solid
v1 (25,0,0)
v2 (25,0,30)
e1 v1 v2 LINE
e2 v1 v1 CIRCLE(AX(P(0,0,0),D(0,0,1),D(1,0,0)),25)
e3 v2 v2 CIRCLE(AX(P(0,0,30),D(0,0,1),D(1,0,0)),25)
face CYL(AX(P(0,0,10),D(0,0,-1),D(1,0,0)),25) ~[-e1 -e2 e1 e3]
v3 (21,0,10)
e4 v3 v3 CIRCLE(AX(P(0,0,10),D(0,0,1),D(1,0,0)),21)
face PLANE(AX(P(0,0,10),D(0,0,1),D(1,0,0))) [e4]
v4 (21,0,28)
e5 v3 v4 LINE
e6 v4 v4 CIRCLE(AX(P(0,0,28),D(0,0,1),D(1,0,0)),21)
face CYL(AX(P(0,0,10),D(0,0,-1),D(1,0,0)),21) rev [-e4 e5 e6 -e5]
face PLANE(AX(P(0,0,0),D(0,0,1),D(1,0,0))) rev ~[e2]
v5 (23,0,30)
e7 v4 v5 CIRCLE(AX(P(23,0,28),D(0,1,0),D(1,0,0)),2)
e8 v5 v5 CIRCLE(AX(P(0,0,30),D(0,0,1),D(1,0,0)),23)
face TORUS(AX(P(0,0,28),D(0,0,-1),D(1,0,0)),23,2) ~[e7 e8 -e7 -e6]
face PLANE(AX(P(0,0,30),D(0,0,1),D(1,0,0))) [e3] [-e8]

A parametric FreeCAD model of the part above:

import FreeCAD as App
import Part
import Sketcher


def edges_at(feature, points):
    """Names of the edges that pass closest to the given points."""
    edges = feature.Shape.Edges
    near = lambda p: min(range(len(edges)), key=lambda i: edges[i].distToShape(Part.Vertex(*p))[0])
    return sorted({f"Edge{near(p) + 1}" for p in points})

doc = App.newDocument("Part")
params = doc.addObject("Spreadsheet::Sheet", "Params")
for row, (alias, value) in enumerate([
    ("sketch1_diameter", "50 mm"),
    ("sketch1_diameter2", "42 mm"),
    ("pad1_length", "20 mm"),
    ("fillet_radius", "2 mm"),
    ("sketch2_diameter", "50 mm"),
    ("pad2_length", "10 mm"),
], start=1):
    params.set(f"A{row}", alias)
    params.set(f"B{row}", "=" + value)
    params.setAlias(f"B{row}", alias)

body = doc.addObject("PartDesign::Body", "Body")

# Sketch on XY plane
sketch1 = body.newObject("Sketcher::SketchObject", "Sketch")
sketch1.AttachmentSupport = (doc.getObject("XY_Plane"), [""])
sketch1.MapMode = "FlatFace"
sketch1.AttachmentOffset = App.Placement(App.Vector(0, 0, 10), App.Rotation())
sketch1.addGeometry([
    Part.Circle(App.Vector(0, 0, 0), App.Vector(0, 0, 1), 25),
    Part.Circle(App.Vector(0, 0, 0), App.Vector(0, 0, 1), 21),
], False)
sketch1.addConstraint([
    Sketcher.Constraint("Coincident", 0, 3, -1, 1),
    Sketcher.Constraint("Coincident", 1, 3, -1, 1),
    Sketcher.Constraint("Diameter", 0, 50.0),
    Sketcher.Constraint("Diameter", 1, 42.0),
])
sketch1.setExpression("Constraints[2]", "Params.sketch1_diameter")
sketch1.setExpression("Constraints[3]", "Params.sketch1_diameter2")
pad1 = body.newObject("PartDesign::Pad", "Pad")
pad1.Profile = sketch1
pad1.setExpression("Length", "Params.pad1_length")
doc.recompute()

fillet = body.newObject("PartDesign::Fillet", "Fillet")
fillet.Base = (pad1, edges_at(pad1, [(-21, 0, 30)]))
fillet.setExpression("Radius", "Params.fillet_radius")
body2 = doc.addObject("PartDesign::Body", "Body001")

# Sketch on XY plane
sketch2 = body2.newObject("Sketcher::SketchObject", "Sketch001")
sketch2.AttachmentSupport = (doc.getObject("XY_Plane001"), [""])
sketch2.MapMode = "FlatFace"
sketch2.addGeometry(Part.Circle(App.Vector(0, 0, 0), App.Vector(0, 0, 1), 25), False)
sketch2.addConstraint([
    Sketcher.Constraint("Coincident", 0, 3, -1, 1),
    Sketcher.Constraint("Diameter", 0, 50.0),
])
sketch2.setExpression("Constraints[1]", "Params.sketch2_diameter")
pad2 = body2.newObject("PartDesign::Pad", "Pad001")
pad2.Profile = sketch2
pad2.setExpression("Length", "Params.pad2_length")
doc.recompute()

boolean = body2.newObject("PartDesign::Boolean", "Boolean")
boolean.Type = "Fuse"
boolean.addObjects([body])

doc.recompute()
